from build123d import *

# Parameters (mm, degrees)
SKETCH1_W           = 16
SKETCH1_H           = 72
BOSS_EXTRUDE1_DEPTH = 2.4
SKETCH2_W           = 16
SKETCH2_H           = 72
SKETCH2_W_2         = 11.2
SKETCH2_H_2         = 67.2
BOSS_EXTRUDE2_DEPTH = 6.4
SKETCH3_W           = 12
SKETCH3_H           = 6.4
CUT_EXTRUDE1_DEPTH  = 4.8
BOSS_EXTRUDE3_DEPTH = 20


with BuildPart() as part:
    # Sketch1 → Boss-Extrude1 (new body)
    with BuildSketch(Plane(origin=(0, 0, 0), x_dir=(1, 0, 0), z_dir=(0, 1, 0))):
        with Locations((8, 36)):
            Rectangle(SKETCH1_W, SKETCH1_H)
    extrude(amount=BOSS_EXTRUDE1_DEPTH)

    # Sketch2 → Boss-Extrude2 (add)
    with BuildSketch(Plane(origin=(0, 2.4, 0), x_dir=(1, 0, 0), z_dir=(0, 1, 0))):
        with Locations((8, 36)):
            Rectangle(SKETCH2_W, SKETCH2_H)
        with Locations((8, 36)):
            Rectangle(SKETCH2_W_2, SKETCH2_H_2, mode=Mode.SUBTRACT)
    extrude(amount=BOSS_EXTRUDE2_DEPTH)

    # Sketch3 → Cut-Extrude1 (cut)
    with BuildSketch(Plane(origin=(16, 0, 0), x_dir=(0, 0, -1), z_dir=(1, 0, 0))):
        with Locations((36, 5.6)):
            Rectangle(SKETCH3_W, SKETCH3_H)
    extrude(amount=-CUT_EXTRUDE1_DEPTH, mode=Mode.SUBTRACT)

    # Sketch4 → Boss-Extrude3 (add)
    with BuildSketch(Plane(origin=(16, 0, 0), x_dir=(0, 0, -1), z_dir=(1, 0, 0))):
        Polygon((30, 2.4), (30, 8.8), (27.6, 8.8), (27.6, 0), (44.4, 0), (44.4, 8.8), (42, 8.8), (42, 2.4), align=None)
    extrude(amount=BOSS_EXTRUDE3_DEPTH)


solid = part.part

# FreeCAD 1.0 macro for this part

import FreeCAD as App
import Part
import Sketcher
from FreeCAD import Vector


def add_polygon(sketch, points):
    """Adds a closed chain of lines whose ends are joined by coincident constraints."""
    first, n = sketch.GeometryCount, len(points)
    for a, b in zip(points, points[1:] + points[:1]):
        sketch.addGeometry(Part.LineSegment(App.Vector(*a, 0), App.Vector(*b, 0)), False)
    for i in range(n):
        sketch.addConstraint(Sketcher.Constraint("Coincident", first + i, 2, first + (i + 1) % n, 1))

doc = App.newDocument("Part")
body = doc.addObject("PartDesign::Body", "Body")

# Sketch on XZ plane
sketch1 = doc.addObject("Sketcher::SketchObject", "Sketch")
body.addObject(sketch1)
sketch1.AttachmentSupport = (doc.XZ_Plane, [""])
sketch1.MapMode = "FlatFace"
add_polygon(sketch1, [(0, -72), (0, 0), (16, 0), (16, -72)])  # lines 0-3
sketch1.addConstraint(Sketcher.Constraint("Vertical", 0))
sketch1.addConstraint(Sketcher.Constraint("Horizontal", 1))
sketch1.addConstraint(Sketcher.Constraint("Vertical", 2))
sketch1.addConstraint(Sketcher.Constraint("Horizontal", 3))
sketch1.addConstraint(Sketcher.Constraint("Coincident", 0, 2, -1, 1))
sketch1.addConstraint(Sketcher.Constraint("DistanceX", 1, 1, 1, 2, 16.0))
sketch1.addConstraint(Sketcher.Constraint("DistanceY", 0, 1, 0, 2, 72.0))
pad1 = doc.addObject("PartDesign::Pad", "Pad")
body.addObject(pad1)
pad1.Profile = sketch1
pad1.Length = 2.4
pad1.Reversed = True

# Sketch on XZ plane
sketch2 = doc.addObject("Sketcher::SketchObject", "Sketch001")
body.addObject(sketch2)
sketch2.AttachmentSupport = (doc.XZ_Plane, [""])
sketch2.MapMode = "FlatFace"
sketch2.AttachmentOffset = App.Placement(Vector(0, 0, -2.4), App.Rotation())
add_polygon(sketch2, [(0, -72), (0, 0), (16, 0), (16, -72)])  # lines 0-3
add_polygon(sketch2, [(14, -2), (2, -2), (2, -70), (14, -70)])  # lines 4-7
sketch2.addConstraint(Sketcher.Constraint("Vertical", 0))
sketch2.addConstraint(Sketcher.Constraint("Horizontal", 1))
sketch2.addConstraint(Sketcher.Constraint("Vertical", 2))
sketch2.addConstraint(Sketcher.Constraint("Horizontal", 3))
sketch2.addConstraint(Sketcher.Constraint("Horizontal", 4))
sketch2.addConstraint(Sketcher.Constraint("Vertical", 5))
sketch2.addConstraint(Sketcher.Constraint("Horizontal", 6))
sketch2.addConstraint(Sketcher.Constraint("Vertical", 7))
sketch2.addConstraint(Sketcher.Constraint("Coincident", 0, 2, -1, 1))
sketch2.addConstraint(Sketcher.Constraint("DistanceX", 1, 1, 1, 2, 16.0))
sketch2.addConstraint(Sketcher.Constraint("DistanceY", 0, 1, 0, 2, 72.0))
sketch2.addConstraint(Sketcher.Constraint("DistanceX", 4, 2, 4, 1, 11.2))
sketch2.addConstraint(Sketcher.Constraint("DistanceY", 5, 2, 5, 1, 67.2))
sketch2.addConstraint(Sketcher.Constraint("DistanceX", -1, 1, 4, 2, 2.4))
sketch2.addConstraint(Sketcher.Constraint("DistanceY", 4, 2, -1, 1, 2.4))
pad2 = doc.addObject("PartDesign::Pad", "Pad001")
body.addObject(pad2)
pad2.Profile = sketch2
pad2.Length = 6.4
pad2.Reversed = True

# Sketch on YZ plane
sketch3 = doc.addObject("Sketcher::SketchObject", "Sketch002")
body.addObject(sketch3)
sketch3.AttachmentSupport = (doc.YZ_Plane, [""])
sketch3.MapMode = "FlatFace"
sketch3.AttachmentOffset = App.Placement(Vector(0, 0, 16), App.Rotation())
add_polygon(sketch3, [(9, -30), (2, -30), (2, -42), (9, -42)])  # lines 0-3
sketch3.addConstraint(Sketcher.Constraint("Horizontal", 0))
sketch3.addConstraint(Sketcher.Constraint("Vertical", 1))
sketch3.addConstraint(Sketcher.Constraint("Horizontal", 2))
sketch3.addConstraint(Sketcher.Constraint("Vertical", 3))
sketch3.addConstraint(Sketcher.Constraint("DistanceY", 1, 2, 1, 1, 12.0))
sketch3.addConstraint(Sketcher.Constraint("DistanceX", 0, 2, 0, 1, 6.4))
sketch3.addConstraint(Sketcher.Constraint("DistanceY", 0, 2, -1, 1, 30.0))
sketch3.addConstraint(Sketcher.Constraint("DistanceX", -1, 1, 0, 2, 2.4))
pocket1 = doc.addObject("PartDesign::Pocket", "Pocket")
body.addObject(pocket1)
pocket1.Profile = sketch3
pocket1.Length = 4.8

# Sketch on YZ plane
sketch4 = doc.addObject("Sketcher::SketchObject", "Sketch003")
body.addObject(sketch4)
sketch4.AttachmentSupport = (doc.YZ_Plane, [""])
sketch4.MapMode = "FlatFace"
sketch4.AttachmentOffset = App.Placement(Vector(0, 0, 16), App.Rotation())
add_polygon(sketch4, [(2.4, -30), (8.8, -30), (8.8, -27.6), (0, -27.6), (0, -44.4), (8.8, -44.4), (8.8, -42), (2.4, -42)])  # lines 0-7
sketch4.addConstraint(Sketcher.Constraint("Horizontal", 0))
sketch4.addConstraint(Sketcher.Constraint("Vertical", 1))
sketch4.addConstraint(Sketcher.Constraint("Horizontal", 2))
sketch4.addConstraint(Sketcher.Constraint("Vertical", 3))
sketch4.addConstraint(Sketcher.Constraint("Horizontal", 4))
sketch4.addConstraint(Sketcher.Constraint("Vertical", 5))
sketch4.addConstraint(Sketcher.Constraint("Horizontal", 6))
sketch4.addConstraint(Sketcher.Constraint("Vertical", 7))
sketch4.addConstraint(Sketcher.Constraint("PointOnObject", 2, 2, -2))
sketch4.addConstraint(Sketcher.Constraint("Vertical", 1, 2, 4, 2))
sketch4.addConstraint(Sketcher.Constraint("Equal", 1, 5))
sketch4.addConstraint(Sketcher.Constraint("DistanceY", 7, 1, 7, 2, 12.0))
sketch4.addConstraint(Sketcher.Constraint("DistanceX", 0, 1, 0, 2, 6.4))
sketch4.addConstraint(Sketcher.Constraint("DistanceX", 2, 2, 2, 1, 8.8))
sketch4.addConstraint(Sketcher.Constraint("DistanceY", 1, 1, 1, 2, 2.4))
sketch4.addConstraint(Sketcher.Constraint("DistanceY", 0, 2, -1, 1, 30.0))
pad3 = doc.addObject("PartDesign::Pad", "Pad002")
body.addObject(pad3)
pad3.Profile = sketch4
pad3.Length = 20

doc.recompute()
